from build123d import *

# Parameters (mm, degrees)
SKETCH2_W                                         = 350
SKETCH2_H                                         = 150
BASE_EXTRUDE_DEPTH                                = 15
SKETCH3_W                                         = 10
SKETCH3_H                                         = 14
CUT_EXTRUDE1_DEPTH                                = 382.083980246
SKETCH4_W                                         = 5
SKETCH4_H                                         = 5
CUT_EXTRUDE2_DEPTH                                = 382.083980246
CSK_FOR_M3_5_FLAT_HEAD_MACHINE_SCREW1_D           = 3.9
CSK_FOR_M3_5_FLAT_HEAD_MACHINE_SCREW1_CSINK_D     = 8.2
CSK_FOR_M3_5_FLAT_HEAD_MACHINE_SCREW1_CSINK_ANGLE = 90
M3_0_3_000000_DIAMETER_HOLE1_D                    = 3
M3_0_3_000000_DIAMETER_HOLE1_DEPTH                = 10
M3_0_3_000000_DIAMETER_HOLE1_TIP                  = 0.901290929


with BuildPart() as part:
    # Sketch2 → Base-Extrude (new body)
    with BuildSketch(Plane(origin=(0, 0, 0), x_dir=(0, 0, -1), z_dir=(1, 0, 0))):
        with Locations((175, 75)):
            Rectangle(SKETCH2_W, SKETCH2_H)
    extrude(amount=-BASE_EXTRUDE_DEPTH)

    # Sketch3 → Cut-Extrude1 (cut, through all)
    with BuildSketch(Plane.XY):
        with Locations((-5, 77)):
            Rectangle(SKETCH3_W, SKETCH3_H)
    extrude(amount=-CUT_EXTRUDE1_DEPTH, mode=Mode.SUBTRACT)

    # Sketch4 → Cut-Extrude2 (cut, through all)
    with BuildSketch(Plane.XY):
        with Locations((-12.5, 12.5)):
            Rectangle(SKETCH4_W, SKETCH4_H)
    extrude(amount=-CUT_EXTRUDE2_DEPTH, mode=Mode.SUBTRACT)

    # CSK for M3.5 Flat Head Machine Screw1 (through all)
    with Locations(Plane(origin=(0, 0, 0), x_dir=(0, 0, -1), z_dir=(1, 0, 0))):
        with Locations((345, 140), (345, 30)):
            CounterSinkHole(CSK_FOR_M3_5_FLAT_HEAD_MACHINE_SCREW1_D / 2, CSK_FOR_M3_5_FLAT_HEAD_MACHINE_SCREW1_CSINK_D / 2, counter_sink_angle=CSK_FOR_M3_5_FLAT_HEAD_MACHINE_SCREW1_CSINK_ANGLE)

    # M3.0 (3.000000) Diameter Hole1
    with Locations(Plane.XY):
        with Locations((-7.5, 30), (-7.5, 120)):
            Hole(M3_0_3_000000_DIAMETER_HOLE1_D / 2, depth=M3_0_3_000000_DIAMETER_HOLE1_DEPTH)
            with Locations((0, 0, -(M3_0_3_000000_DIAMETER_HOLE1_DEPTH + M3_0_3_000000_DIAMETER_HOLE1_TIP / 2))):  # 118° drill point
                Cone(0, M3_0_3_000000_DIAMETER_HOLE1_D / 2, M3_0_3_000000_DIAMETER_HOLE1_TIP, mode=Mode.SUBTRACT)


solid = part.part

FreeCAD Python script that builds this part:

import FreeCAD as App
import Part
import Sketcher
from FreeCAD import Vector
Q = App.Units.Quantity

doc = App.newDocument("Part")
params = doc.addObject("Spreadsheet::Sheet", "Params")
for row, (alias, value) in enumerate([
    ("sketch1_width", "150 mm"),
    ("sketch1_height", "350 mm"),
    ("pad1_length", "15 mm"),
    ("sketch2_width", "10 mm"),
    ("sketch2_height", "14 mm"),
    ("sketch3_width", "5 mm"),
    ("sketch4_diameter", "3.9 mm"),
    ("hole_diameter", "3.9 mm"),
    ("hole_csink_diameter", "8.2 mm"),
    ("sketch5_diameter", "3 mm"),
    ("hole2_diameter", "3 mm"),
    ("hole2_depth", "10 mm"),
], start=1):
    params.set(f"A{row}", alias)
    params.set(f"B{row}", "=" + value)
    params.setAlias(f"B{row}", alias)

body = doc.addObject("PartDesign::Body", "Body")

# Sketch on YZ plane
sketch1 = doc.addObject("Sketcher::SketchObject", "Sketch")
body.addObject(sketch1)
sketch1.AttachmentSupport = (doc.YZ_Plane, [""])
sketch1.MapMode = "FlatFace"
sketch1.addGeometry([
    Part.LineSegment(Vector(150, 0, 0), Vector(0, 0, 0)),
    Part.LineSegment(Vector(0, 0, 0), Vector(0, -350, 0)),
    Part.LineSegment(Vector(0, -350, 0), Vector(150, -350, 0)),
    Part.LineSegment(Vector(150, -350, 0), Vector(150, 0, 0)),
], False)
sketch1.addConstraint([
    Sketcher.Constraint("Coincident", 0, 2, 1, 1),
    Sketcher.Constraint("Coincident", 1, 2, 2, 1),
    Sketcher.Constraint("Coincident", 2, 2, 3, 1),
    Sketcher.Constraint("Coincident", 3, 2, 0, 1),
    Sketcher.Constraint("Horizontal", 0),
    Sketcher.Constraint("Vertical", 1),
    Sketcher.Constraint("Horizontal", 2),
    Sketcher.Constraint("Vertical", 3),
    Sketcher.Constraint("Coincident", 0, 2, -1, 1),
    Sketcher.Constraint("DistanceX", 0, 2, 0, 1, Q("150 mm")),
    Sketcher.Constraint("DistanceY", 1, 2, 1, 1, Q("350 mm")),
])
sketch1.setExpression("Constraints[9]", "Params.sketch1_width")
sketch1.setExpression("Constraints[10]", "Params.sketch1_height")
pad1 = doc.addObject("PartDesign::Pad", "Pad")
body.addObject(pad1)
pad1.Profile = sketch1
pad1.setExpression("Length", "Params.pad1_length")
pad1.Reversed = True

# Sketch on XY plane
sketch2 = doc.addObject("Sketcher::SketchObject", "Sketch001")
body.addObject(sketch2)
sketch2.AttachmentSupport = (doc.XY_Plane, [""])
sketch2.MapMode = "FlatFace"
sketch2.addGeometry([
    Part.LineSegment(Vector(-10, 84, 0), Vector(-10, 70, 0)),
    Part.LineSegment(Vector(-10, 70, 0), Vector(0, 70, 0)),
    Part.LineSegment(Vector(0, 70, 0), Vector(0, 84, 0)),
    Part.LineSegment(Vector(0, 84, 0), Vector(-10, 84, 0)),
], False)
sketch2.addConstraint([
    Sketcher.Constraint("Coincident", 0, 2, 1, 1),
    Sketcher.Constraint("Coincident", 1, 2, 2, 1),
    Sketcher.Constraint("Coincident", 2, 2, 3, 1),
    Sketcher.Constraint("Coincident", 3, 2, 0, 1),
    Sketcher.Constraint("Vertical", 0),
    Sketcher.Constraint("Horizontal", 1),
    Sketcher.Constraint("Vertical", 2),
    Sketcher.Constraint("Horizontal", 3),
    Sketcher.Constraint("PointOnObject", 1, 2, -2),
    Sketcher.Constraint("DistanceX", 1, 1, 1, 2, Q("10 mm")),
    Sketcher.Constraint("DistanceY", 0, 2, 0, 1, Q("14 mm")),
    Sketcher.Constraint("DistanceY", -1, 1, 0, 2, Q("70 mm")),
])
sketch2.setExpression("Constraints[9]", "Params.sketch2_width")
sketch2.setExpression("Constraints[10]", "Params.sketch2_height")
pocket1 = doc.addObject("PartDesign::Pocket", "Pocket")
body.addObject(pocket1)
pocket1.Profile = sketch2
pocket1.Type = "ThroughAll"

# Sketch on XY plane
sketch3 = doc.addObject("Sketcher::SketchObject", "Sketch002")
body.addObject(sketch3)
sketch3.AttachmentSupport = (doc.XY_Plane, [""])
sketch3.MapMode = "FlatFace"
sketch3.addGeometry([
    Part.LineSegment(Vector(-15, 15, 0), Vector(-15, 10, 0)),
    Part.LineSegment(Vector(-15, 10, 0), Vector(-10, 10, 0)),
    Part.LineSegment(Vector(-10, 10, 0), Vector(-10, 15, 0)),
    Part.LineSegment(Vector(-10, 15, 0), Vector(-15, 15, 0)),
], False)
sketch3.addConstraint([
    Sketcher.Constraint("Coincident", 0, 2, 1, 1),
    Sketcher.Constraint("Coincident", 1, 2, 2, 1),
    Sketcher.Constraint("Coincident", 2, 2, 3, 1),
    Sketcher.Constraint("Coincident", 3, 2, 0, 1),
    Sketcher.Constraint("Vertical", 0),
    Sketcher.Constraint("Horizontal", 1),
    Sketcher.Constraint("Vertical", 2),
    Sketcher.Constraint("Horizontal", 3),
    Sketcher.Constraint("Equal", 3, 0),
    Sketcher.Constraint("DistanceX", 1, 1, 1, 2, Q("5 mm")),
    Sketcher.Constraint("DistanceX", 0, 2, -1, 1, Q("15 mm")),
    Sketcher.Constraint("DistanceY", -1, 1, 0, 2, Q("10 mm")),
])
sketch3.setExpression("Constraints[9]", "Params.sketch3_width")
pocket2 = doc.addObject("PartDesign::Pocket", "Pocket001")
body.addObject(pocket2)
pocket2.Profile = sketch3
pocket2.Type = "ThroughAll"

# Sketch on YZ plane
sketch4 = doc.addObject("Sketcher::SketchObject", "Sketch003")
body.addObject(sketch4)
sketch4.AttachmentSupport = (doc.YZ_Plane, [""])
sketch4.MapMode = "FlatFace"
sketch4.addGeometry([
    Part.Circle(Vector(140, -345, 0), Vector(0, 0, 1), 1.9),
    Part.Circle(Vector(30, -345, 0), Vector(0, 0, 1), 1.9),
], False)
sketch4.addConstraint([
    Sketcher.Constraint("Equal", 0, 1),
    Sketcher.Constraint("Horizontal", 0, 3, 1, 3),
    Sketcher.Constraint("Diameter", 0, Q("3.9 mm")),
    Sketcher.Constraint("DistanceX", -1, 1, 0, 3, Q("140 mm")),
    Sketcher.Constraint("DistanceY", 0, 3, -1, 1, Q("345 mm")),
    Sketcher.Constraint("DistanceX", -1, 1, 1, 3, Q("30 mm")),
])
sketch4.setExpression("Constraints[2]", "Params.sketch4_diameter")
doc.recompute()
hole = doc.addObject("PartDesign::Hole", "Hole")
body.addObject(hole)
hole.Profile = sketch4
hole.ThreadType = "None"
hole.setExpression("Diameter", "Params.hole_diameter")
hole.DepthType = "ThroughAll"
hole.HoleCutType = "Countersink"
hole.setExpression("HoleCutDiameter", "Params.hole_csink_diameter")
hole.HoleCutCountersinkAngle = 90

# Sketch on XY plane
sketch5 = doc.addObject("Sketcher::SketchObject", "Sketch004")
body.addObject(sketch5)
sketch5.AttachmentSupport = (doc.XY_Plane, [""])
sketch5.MapMode = "FlatFace"
sketch5.addGeometry([
    Part.Circle(Vector(-7.5, 30, 0), Vector(0, 0, 1), 1.5),
    Part.Circle(Vector(-7.5, 120, 0), Vector(0, 0, 1), 1.5),
], False)
sketch5.addConstraint([
    Sketcher.Constraint("Equal", 0, 1),
    Sketcher.Constraint("Vertical", 0, 3, 1, 3),
    Sketcher.Constraint("Diameter", 0, Q("3 mm")),
    Sketcher.Constraint("DistanceY", -1, 1, 0, 3, Q("30 mm")),
    Sketcher.Constraint("DistanceY", -1, 1, 1, 3, Q("120 mm")),
    Sketcher.Constraint("DistanceX", 0, 3, -1, 1, Q("7.5 mm")),
])
sketch5.setExpression("Constraints[2]", "Params.sketch5_diameter")
doc.recompute()
hole2 = doc.addObject("PartDesign::Hole", "Hole001")
body.addObject(hole2)
hole2.Profile = sketch5
hole2.ThreadType = "None"
hole2.setExpression("Diameter", "Params.hole2_diameter")
hole2.DepthType = "Dimension"
hole2.setExpression("Depth", "Params.hole2_depth")
hole2.DrillPoint = "Angled"
hole2.DrillPointAngle = 118

doc.recompute()
